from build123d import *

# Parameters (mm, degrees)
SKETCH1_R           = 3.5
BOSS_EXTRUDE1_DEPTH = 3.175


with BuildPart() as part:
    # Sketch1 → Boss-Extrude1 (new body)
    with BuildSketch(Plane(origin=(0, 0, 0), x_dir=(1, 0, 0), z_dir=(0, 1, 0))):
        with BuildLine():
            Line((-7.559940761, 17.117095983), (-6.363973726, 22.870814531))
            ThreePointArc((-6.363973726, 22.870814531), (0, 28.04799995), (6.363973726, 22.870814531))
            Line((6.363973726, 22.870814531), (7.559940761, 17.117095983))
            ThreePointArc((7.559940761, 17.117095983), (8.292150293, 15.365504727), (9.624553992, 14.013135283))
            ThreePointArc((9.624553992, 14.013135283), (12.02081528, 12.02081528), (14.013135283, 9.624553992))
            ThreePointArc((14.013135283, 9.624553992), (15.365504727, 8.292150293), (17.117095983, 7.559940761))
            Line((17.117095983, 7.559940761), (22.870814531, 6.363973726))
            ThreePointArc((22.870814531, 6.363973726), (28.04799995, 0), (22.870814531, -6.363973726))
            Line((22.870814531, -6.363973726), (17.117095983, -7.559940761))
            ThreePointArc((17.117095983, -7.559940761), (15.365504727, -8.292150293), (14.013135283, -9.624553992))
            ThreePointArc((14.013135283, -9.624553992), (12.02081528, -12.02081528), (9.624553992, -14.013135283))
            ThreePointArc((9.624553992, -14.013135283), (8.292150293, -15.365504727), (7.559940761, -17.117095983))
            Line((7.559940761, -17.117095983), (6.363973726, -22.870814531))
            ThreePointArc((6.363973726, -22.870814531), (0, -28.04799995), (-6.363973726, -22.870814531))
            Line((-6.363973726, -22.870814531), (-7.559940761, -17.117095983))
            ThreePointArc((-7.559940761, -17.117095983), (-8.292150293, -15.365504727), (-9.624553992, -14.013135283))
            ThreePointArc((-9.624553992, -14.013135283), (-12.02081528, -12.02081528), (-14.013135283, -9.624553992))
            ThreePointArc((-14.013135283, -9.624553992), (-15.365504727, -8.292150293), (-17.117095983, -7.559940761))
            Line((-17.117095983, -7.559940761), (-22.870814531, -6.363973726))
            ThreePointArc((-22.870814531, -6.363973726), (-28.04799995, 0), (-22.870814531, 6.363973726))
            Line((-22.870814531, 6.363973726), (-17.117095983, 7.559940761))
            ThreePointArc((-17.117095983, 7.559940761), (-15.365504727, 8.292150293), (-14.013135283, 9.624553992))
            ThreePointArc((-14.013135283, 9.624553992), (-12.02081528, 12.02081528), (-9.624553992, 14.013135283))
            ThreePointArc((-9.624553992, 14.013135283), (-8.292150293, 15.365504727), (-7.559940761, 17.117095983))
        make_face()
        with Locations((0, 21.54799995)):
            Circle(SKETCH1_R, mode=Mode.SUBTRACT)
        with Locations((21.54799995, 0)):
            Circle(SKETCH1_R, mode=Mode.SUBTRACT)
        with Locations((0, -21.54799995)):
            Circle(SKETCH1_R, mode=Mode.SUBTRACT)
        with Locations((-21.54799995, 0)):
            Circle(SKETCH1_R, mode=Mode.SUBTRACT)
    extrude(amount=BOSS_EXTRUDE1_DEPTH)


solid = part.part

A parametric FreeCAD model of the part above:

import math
import FreeCAD as App
import Part
import Sketcher

doc = App.newDocument("Part")
body = doc.addObject("PartDesign::Body", "Body")

# Sketch on XZ plane
sketch1 = doc.addObject("Sketcher::SketchObject", "Sketch")
body.addObject(sketch1)
sketch1.AttachmentSupport = (doc.XZ_Plane, [""])
sketch1.MapMode = "FlatFace"
sketch1.addGeometry([
    Part.LineSegment(App.Vector(-6.363974, -22.870815, 0), App.Vector(-7.559941, -17.117096, 0)),  # 0
    Part.ArcOfCircle(Part.Circle(App.Vector(-12.455305, -18.134646, 0), App.Vector(0, 0, 1), 5), math.radians(11.742286), math.radians(55.517796)),  # 1
    Part.ArcOfCircle(Part.Circle(App.Vector(0, 0, 0), App.Vector(0, 0, 1), 17), math.radians(-145.517796), math.radians(-124.482204)),  # 2
    Part.ArcOfCircle(Part.Circle(App.Vector(-18.134646, -12.455305, 0), App.Vector(0, 0, 1), 5), math.radians(34.482204), math.radians(78.257714)),  # 3
    Part.LineSegment(App.Vector(-17.117096, -7.559941, 0), App.Vector(-22.870815, -6.363974, 0)),  # 4
    Part.ArcOfCircle(Part.Circle(App.Vector(-21.548, 0, 0), App.Vector(0, 0, 1), 6.5), math.radians(101.742286), math.radians(258.257714)),  # 5
    Part.LineSegment(App.Vector(-22.870815, 6.363974, 0), App.Vector(-17.117096, 7.559941, 0)),  # 6
    Part.ArcOfCircle(Part.Circle(App.Vector(-18.134646, 12.455305, 0), App.Vector(0, 0, 1), 5), math.radians(-78.257714), math.radians(-34.482204)),  # 7
    Part.ArcOfCircle(Part.Circle(App.Vector(0, 0, 0), App.Vector(0, 0, 1), 17), math.radians(124.482204), math.radians(145.517796)),  # 8
    Part.ArcOfCircle(Part.Circle(App.Vector(-12.455305, 18.134646, 0), App.Vector(0, 0, 1), 5), math.radians(-55.517796), math.radians(-11.742286)),  # 9
    Part.LineSegment(App.Vector(-7.559941, 17.117096, 0), App.Vector(-6.363974, 22.870815, 0)),  # 10
    Part.ArcOfCircle(Part.Circle(App.Vector(0, 21.548, 0), App.Vector(0, 0, 1), 6.5), math.radians(11.742286), math.radians(168.257714)),  # 11
    Part.LineSegment(App.Vector(6.363974, 22.870815, 0), App.Vector(7.559941, 17.117096, 0)),  # 12
    Part.ArcOfCircle(Part.Circle(App.Vector(12.455305, 18.134646, 0), App.Vector(0, 0, 1), 5), math.radians(-168.257714), math.radians(-124.482204)),  # 13
    Part.ArcOfCircle(Part.Circle(App.Vector(0, 0, 0), App.Vector(0, 0, 1), 17), math.radians(34.482204), math.radians(55.517796)),  # 14
    Part.ArcOfCircle(Part.Circle(App.Vector(18.134646, 12.455305, 0), App.Vector(0, 0, 1), 5), math.radians(-145.517796), math.radians(-101.742286)),  # 15
    Part.LineSegment(App.Vector(17.117096, 7.559941, 0), App.Vector(22.870815, 6.363974, 0)),  # 16
    Part.ArcOfCircle(Part.Circle(App.Vector(21.548, 0, 0), App.Vector(0, 0, 1), 6.5), math.radians(-78.257714), math.radians(78.257714)),  # 17
    Part.LineSegment(App.Vector(22.870815, -6.363974, 0), App.Vector(17.117096, -7.559941, 0)),  # 18
    Part.ArcOfCircle(Part.Circle(App.Vector(18.134646, -12.455305, 0), App.Vector(0, 0, 1), 5), math.radians(101.742286), math.radians(145.517796)),  # 19
    Part.ArcOfCircle(Part.Circle(App.Vector(0, 0, 0), App.Vector(0, 0, 1), 17), math.radians(-55.517796), math.radians(-34.482204)),  # 20
    Part.ArcOfCircle(Part.Circle(App.Vector(12.455305, -18.134646, 0), App.Vector(0, 0, 1), 5), math.radians(124.482204), math.radians(168.257714)),  # 21
    Part.LineSegment(App.Vector(7.559941, -17.117096, 0), App.Vector(6.363974, -22.870815, 0)),  # 22
    Part.ArcOfCircle(Part.Circle(App.Vector(0, -21.548, 0), App.Vector(0, 0, 1), 6.5), math.radians(-168.257714), math.radians(-11.742286)),  # 23
    Part.Circle(App.Vector(0, 21.548, 0), App.Vector(0, 0, 1), 3.5),  # 24
    Part.Circle(App.Vector(21.548, 0, 0), App.Vector(0, 0, 1), 3.5),  # 25
    Part.Circle(App.Vector(-21.548, 0, 0), App.Vector(0, 0, 1), 3.5),  # 26
    Part.Circle(App.Vector(0, -21.548, 0), App.Vector(0, 0, 1), 3.5),  # 27
], False)
sketch1.addConstraint([
    Sketcher.Constraint("Tangent", 0, 2, 1, 1),
    Sketcher.Constraint("Tangent", 1, 2, 2, 2),
    Sketcher.Constraint("Tangent", 2, 1, 3, 1),
    Sketcher.Constraint("Tangent", 3, 2, 4, 1),
    Sketcher.Constraint("Tangent", 4, 2, 5, 2),
    Sketcher.Constraint("Tangent", 5, 1, 6, 1),
    Sketcher.Constraint("Tangent", 6, 2, 7, 1),
    Sketcher.Constraint("Tangent", 7, 2, 8, 2),
    Sketcher.Constraint("Tangent", 8, 1, 9, 1),
    Sketcher.Constraint("Tangent", 9, 2, 10, 1),
    Sketcher.Constraint("Tangent", 10, 2, 11, 2),
    Sketcher.Constraint("Tangent", 11, 1, 12, 1),
    Sketcher.Constraint("Tangent", 12, 2, 13, 1),
    Sketcher.Constraint("Tangent", 13, 2, 14, 2),
    Sketcher.Constraint("Tangent", 14, 1, 15, 1),
    Sketcher.Constraint("Tangent", 15, 2, 16, 1),
    Sketcher.Constraint("Tangent", 16, 2, 17, 2),
    Sketcher.Constraint("Tangent", 17, 1, 18, 1),
    Sketcher.Constraint("Tangent", 18, 2, 19, 1),
    Sketcher.Constraint("Tangent", 19, 2, 20, 2),
    Sketcher.Constraint("Tangent", 20, 1, 21, 1),
    Sketcher.Constraint("Tangent", 21, 2, 22, 1),
    Sketcher.Constraint("Tangent", 22, 2, 23, 2),
    Sketcher.Constraint("Tangent", 23, 1, 0, 1),
    Sketcher.Constraint("Coincident", 2, 3, -1, 1),
    Sketcher.Constraint("Coincident", 8, 3, -1, 1),
    Sketcher.Constraint("Coincident", 14, 3, -1, 1),
    Sketcher.Constraint("Coincident", 20, 3, -1, 1),
    Sketcher.Constraint("Coincident", 24, 3, 11, 3),
    Sketcher.Constraint("Coincident", 25, 3, 17, 3),
    Sketcher.Constraint("Coincident", 26, 3, 5, 3),
    Sketcher.Constraint("Coincident", 27, 3, 23, 3),
    Sketcher.Constraint("Equal", 1, 3),
    Sketcher.Constraint("Equal", 3, 7),
    Sketcher.Constraint("Equal", 2, 8),
    Sketcher.Constraint("Equal", 7, 9),
    Sketcher.Constraint("Equal", 5, 11),
    Sketcher.Constraint("Equal", 9, 13),
    Sketcher.Constraint("Equal", 8, 14),
    Sketcher.Constraint("Equal", 13, 15),
    Sketcher.Constraint("Equal", 11, 17),
    Sketcher.Constraint("Equal", 15, 19),
    Sketcher.Constraint("Equal", 14, 20),
    Sketcher.Constraint("Equal", 19, 21),
    Sketcher.Constraint("Equal", 17, 23),
    Sketcher.Constraint("Equal", 24, 25),
    Sketcher.Constraint("Equal", 25, 26),
    Sketcher.Constraint("Equal", 26, 27),
    Sketcher.Constraint("Symmetric", 5, 3, 17, 3, -1, 1),
    Sketcher.Constraint("Symmetric", 11, 3, 23, 3, -1, 1),
    Sketcher.Constraint("Symmetric", 10, 2, 11, 1, -2),
    Sketcher.Constraint("Symmetric", 6, 2, 15, 2, -2),
    Sketcher.Constraint("Perpendicular", 0, 6),
    Sketcher.Constraint("Perpendicular", 4, 10),
    Sketcher.Constraint("Perpendicular", 6, 12),
    Sketcher.Constraint("Perpendicular", 12, 18),
    Sketcher.Constraint("Perpendicular", 16, 22),
    Sketcher.Constraint("Equal", 0, 4),
    Sketcher.Constraint("Diameter", 24, 7.0),
    Sketcher.Constraint("Radius", 1, 5.0),
    Sketcher.Constraint("Radius", 2, 17.0),
    Sketcher.Constraint("Radius", 5, 6.5),
    Sketcher.Constraint("DistanceX", 5, 3, -1, 1, 21.548),
    Sketcher.Constraint("Distance", 0, 5.876701),
])
pad1 = doc.addObject("PartDesign::Pad", "Pad")
body.addObject(pad1)
pad1.Profile = sketch1
pad1.Length = 3.175
pad1.Reversed = True

doc.recompute()
